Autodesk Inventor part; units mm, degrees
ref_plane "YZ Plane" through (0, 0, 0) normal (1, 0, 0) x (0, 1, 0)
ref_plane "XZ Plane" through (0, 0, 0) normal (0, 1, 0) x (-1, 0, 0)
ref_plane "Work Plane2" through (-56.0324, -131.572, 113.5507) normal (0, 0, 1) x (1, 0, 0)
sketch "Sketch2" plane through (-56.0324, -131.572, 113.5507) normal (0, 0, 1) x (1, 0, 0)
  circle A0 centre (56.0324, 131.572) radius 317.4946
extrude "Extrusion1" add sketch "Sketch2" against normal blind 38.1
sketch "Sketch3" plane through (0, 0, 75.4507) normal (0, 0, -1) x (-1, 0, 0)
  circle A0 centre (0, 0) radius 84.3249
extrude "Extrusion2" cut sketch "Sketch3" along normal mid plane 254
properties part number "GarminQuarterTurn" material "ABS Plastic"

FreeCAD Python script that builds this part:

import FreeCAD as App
import Part
import Sketcher
Q = App.Units.Quantity

doc = App.newDocument("Part")
body = doc.addObject("PartDesign::Body", "Body")

sketch1 = doc.addObject("Sketcher::SketchObject", "Sketch")
body.addObject(sketch1)
sketch1.AttachmentSupport = (doc.XY_Plane, [""])
sketch1.MapMode = "FlatFace"
sketch1.AttachmentOffset = App.Placement(App.Vector(0, 0, 4.4705 * 25.4), App.Rotation())
sketch1.addGeometry(Part.Circle(App.Vector(0, 0, 0), App.Vector(0, 0, 1), 317.4946), False)
sketch1.addConstraint(Sketcher.Constraint("Coincident", 0, 3, -1, 1))
sketch1.addConstraint(Sketcher.Constraint("Diameter", 0, Q("634.9892 mm")))
pad1 = doc.addObject("PartDesign::Pad", "Pad")
body.addObject(pad1)
pad1.Profile = sketch1
pad1.Length = Q("1.5 in")
pad1.Reversed = True

sketch2 = doc.addObject("Sketcher::SketchObject", "Sketch001")
body.addObject(sketch2)
sketch2.AttachmentSupport = (doc.XY_Plane, [""])
sketch2.MapMode = "FlatFace"
sketch2.AttachmentOffset = App.Placement(App.Vector(0, 0, 2.9705 * 25.4), App.Rotation())
sketch2.addGeometry(Part.Circle(App.Vector(0, 0, 0), App.Vector(0, 0, 1), 84.3249), False)
sketch2.addConstraint(Sketcher.Constraint("Coincident", 0, 3, -1, 1))
sketch2.addConstraint(Sketcher.Constraint("Diameter", 0, Q("168.6498 mm")))
pocket1 = doc.addObject("PartDesign::Pocket", "Pocket")
body.addObject(pocket1)
pocket1.Profile = sketch2
pocket1.Length = Q("10 in")
pocket1.Midplane = True

doc.recompute()
